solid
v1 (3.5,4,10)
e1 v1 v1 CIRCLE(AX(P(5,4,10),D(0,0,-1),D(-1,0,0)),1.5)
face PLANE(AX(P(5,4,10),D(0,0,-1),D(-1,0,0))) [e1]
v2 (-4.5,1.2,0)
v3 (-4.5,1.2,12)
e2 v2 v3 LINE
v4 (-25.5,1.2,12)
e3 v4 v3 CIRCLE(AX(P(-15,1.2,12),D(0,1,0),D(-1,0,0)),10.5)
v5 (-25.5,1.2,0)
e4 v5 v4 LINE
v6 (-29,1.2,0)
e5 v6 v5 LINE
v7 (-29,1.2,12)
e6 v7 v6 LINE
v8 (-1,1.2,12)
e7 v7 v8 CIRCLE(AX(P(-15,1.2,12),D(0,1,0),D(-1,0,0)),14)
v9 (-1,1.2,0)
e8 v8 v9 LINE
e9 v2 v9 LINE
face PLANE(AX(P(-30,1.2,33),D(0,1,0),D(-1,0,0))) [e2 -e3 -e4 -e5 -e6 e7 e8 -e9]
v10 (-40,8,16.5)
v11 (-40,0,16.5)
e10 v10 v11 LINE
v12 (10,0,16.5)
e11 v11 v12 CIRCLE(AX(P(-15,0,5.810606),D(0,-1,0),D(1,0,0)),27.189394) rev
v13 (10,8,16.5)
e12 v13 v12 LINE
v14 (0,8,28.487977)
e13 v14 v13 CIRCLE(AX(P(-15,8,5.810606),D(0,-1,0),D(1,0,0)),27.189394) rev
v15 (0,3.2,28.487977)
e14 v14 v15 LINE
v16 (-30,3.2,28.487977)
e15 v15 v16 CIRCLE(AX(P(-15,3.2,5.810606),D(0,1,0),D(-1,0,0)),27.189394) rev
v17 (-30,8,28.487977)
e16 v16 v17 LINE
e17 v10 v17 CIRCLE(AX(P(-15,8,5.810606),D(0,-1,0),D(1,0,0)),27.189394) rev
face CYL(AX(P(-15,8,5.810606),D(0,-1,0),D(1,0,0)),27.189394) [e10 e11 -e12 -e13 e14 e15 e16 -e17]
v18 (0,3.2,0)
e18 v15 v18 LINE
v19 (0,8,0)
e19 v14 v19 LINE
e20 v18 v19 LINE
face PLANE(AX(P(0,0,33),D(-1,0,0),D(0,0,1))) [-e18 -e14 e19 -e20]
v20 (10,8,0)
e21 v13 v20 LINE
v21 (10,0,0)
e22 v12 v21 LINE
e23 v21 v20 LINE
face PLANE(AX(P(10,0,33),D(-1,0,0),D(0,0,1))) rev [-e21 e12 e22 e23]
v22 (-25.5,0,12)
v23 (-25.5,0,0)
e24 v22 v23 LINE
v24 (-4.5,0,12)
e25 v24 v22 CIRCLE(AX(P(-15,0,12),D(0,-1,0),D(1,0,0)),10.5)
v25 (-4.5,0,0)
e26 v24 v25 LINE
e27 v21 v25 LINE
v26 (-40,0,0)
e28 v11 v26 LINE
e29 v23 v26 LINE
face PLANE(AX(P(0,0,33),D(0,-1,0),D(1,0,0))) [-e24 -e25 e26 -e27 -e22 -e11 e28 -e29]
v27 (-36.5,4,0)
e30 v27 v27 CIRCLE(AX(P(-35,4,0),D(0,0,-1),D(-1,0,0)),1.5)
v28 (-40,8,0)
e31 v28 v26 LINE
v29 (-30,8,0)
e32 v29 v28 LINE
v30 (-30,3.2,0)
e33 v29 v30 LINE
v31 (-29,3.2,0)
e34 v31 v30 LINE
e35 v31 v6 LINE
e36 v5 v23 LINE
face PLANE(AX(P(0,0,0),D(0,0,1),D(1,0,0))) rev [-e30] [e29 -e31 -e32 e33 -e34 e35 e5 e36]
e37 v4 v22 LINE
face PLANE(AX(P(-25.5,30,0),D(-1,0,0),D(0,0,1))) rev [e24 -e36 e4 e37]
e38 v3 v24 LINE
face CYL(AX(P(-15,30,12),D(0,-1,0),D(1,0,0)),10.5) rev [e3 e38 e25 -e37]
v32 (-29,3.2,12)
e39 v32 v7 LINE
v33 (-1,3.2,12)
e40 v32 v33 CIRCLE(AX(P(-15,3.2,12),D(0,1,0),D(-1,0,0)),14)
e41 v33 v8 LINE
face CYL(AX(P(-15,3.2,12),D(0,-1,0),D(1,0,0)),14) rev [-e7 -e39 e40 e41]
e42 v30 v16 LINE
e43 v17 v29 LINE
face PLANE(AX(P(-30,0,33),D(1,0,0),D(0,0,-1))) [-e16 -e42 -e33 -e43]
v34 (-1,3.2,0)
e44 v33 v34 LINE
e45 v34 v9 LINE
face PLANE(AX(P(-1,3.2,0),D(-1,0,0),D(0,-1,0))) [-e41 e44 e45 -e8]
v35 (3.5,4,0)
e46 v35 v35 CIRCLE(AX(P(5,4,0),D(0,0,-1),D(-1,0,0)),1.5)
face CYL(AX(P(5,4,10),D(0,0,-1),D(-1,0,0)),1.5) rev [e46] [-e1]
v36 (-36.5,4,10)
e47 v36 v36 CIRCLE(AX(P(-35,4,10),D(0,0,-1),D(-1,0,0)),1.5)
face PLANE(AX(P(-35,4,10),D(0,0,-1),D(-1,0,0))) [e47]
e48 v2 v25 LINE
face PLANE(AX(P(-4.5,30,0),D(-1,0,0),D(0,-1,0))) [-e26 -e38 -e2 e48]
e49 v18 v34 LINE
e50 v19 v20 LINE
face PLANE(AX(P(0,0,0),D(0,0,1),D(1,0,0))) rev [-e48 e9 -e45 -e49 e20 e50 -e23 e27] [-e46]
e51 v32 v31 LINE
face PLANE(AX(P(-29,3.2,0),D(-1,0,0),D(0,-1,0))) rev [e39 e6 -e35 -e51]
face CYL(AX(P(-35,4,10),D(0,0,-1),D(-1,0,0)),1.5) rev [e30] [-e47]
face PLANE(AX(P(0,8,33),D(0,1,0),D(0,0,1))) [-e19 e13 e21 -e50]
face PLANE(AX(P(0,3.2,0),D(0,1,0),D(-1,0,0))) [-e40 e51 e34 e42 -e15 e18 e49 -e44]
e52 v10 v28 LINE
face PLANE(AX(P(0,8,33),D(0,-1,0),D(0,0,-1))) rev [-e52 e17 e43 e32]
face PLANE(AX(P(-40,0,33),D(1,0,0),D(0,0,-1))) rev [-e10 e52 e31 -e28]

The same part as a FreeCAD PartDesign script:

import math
import FreeCAD as App
import Part
import Sketcher
Q = App.Units.Quantity


def add_polygon(sketch, points):
    """Adds a closed chain of lines whose ends are joined by coincident constraints."""
    first, n = sketch.GeometryCount, len(points)
    for a, b in zip(points, points[1:] + points[:1]):
        sketch.addGeometry(Part.LineSegment(App.Vector(*a, 0), App.Vector(*b, 0)), False)
    for i in range(n):
        sketch.addConstraint(Sketcher.Constraint("Coincident", first + i, 2, first + (i + 1) % n, 1))

doc = App.newDocument("Part")
body = doc.addObject("PartDesign::Body", "Body")

sketch1 = doc.addObject("Sketcher::SketchObject", "Sketch")
body.addObject(sketch1)
sketch1.AttachmentSupport = (doc.XY_Plane, [""])
sketch1.MapMode = "FlatFace"
add_polygon(sketch1, [(-40, 8), (-40, 0), (10, 0), (10, 8), (0, 8), (0, 1.2), (-30, 1.2), (-30, 8)])
sketch1.addConstraint([
    Sketcher.Constraint("Vertical", 0),
    Sketcher.Constraint("Horizontal", 1),
    Sketcher.Constraint("Vertical", 2),
    Sketcher.Constraint("Horizontal", 3),
    Sketcher.Constraint("Vertical", 4),
    Sketcher.Constraint("Horizontal", 5),
    Sketcher.Constraint("Vertical", 6),
    Sketcher.Constraint("Horizontal", 7),
    Sketcher.Constraint("PointOnObject", 0, 2, -1),
    Sketcher.Constraint("PointOnObject", 3, 2, -2),
    Sketcher.Constraint("Horizontal", 3, 2, 6, 2),
    Sketcher.Constraint("Equal", 3, 7),
    Sketcher.Constraint("DistanceX", 1, 1, 1, 2, Q("50 mm")),
    Sketcher.Constraint("DistanceX", 3, 2, 3, 1, Q("10 mm")),
    Sketcher.Constraint("DistanceY", 0, 2, 0, 1, Q("8 mm")),
    Sketcher.Constraint("DistanceY", 4, 2, 4, 1, Q("6.8 mm")),
])
pad1 = doc.addObject("PartDesign::Pad", "Pad")
body.addObject(pad1)
pad1.Profile = sketch1
pad1.Length = 33

sketch2 = doc.addObject("Sketcher::SketchObject", "Sketch001")
body.addObject(sketch2)
sketch2.AttachmentSupport = (doc.XZ_Plane, [""])
sketch2.MapMode = "FlatFace"
sketch2.addGeometry([
    Part.LineSegment(App.Vector(-4.5, 0, 0), App.Vector(-4.5, 12, 0)),
    Part.ArcOfCircle(Part.Circle(App.Vector(-15, 12, 0), App.Vector(0, 0, 1), 10.5), math.radians(0), math.radians(180)),
    Part.LineSegment(App.Vector(-25.5, 12, 0), App.Vector(-25.5, 0, 0)),
    Part.LineSegment(App.Vector(-25.5, 0, 0), App.Vector(-4.5, 0, 0)),
], False)
sketch2.addConstraint([
    Sketcher.Constraint("Tangent", 0, 2, 1, 1),
    Sketcher.Constraint("Tangent", 1, 2, 2, 1),
    Sketcher.Constraint("Coincident", 2, 2, 3, 1),
    Sketcher.Constraint("Coincident", 3, 2, 0, 1),
    Sketcher.Constraint("Vertical", 0),
    Sketcher.Constraint("Vertical", 2),
    Sketcher.Constraint("Horizontal", 3),
    Sketcher.Constraint("PointOnObject", 2, 2, -1),
    Sketcher.Constraint("Radius", 1, Q("10.5 mm")),
    Sketcher.Constraint("DistanceY", 0, 1, 0, 2, Q("12 mm")),
    Sketcher.Constraint("DistanceX", 1, 3, -1, 1, Q("15 mm")),
])
pocket1 = doc.addObject("PartDesign::Pocket", "Pocket")
body.addObject(pocket1)
pocket1.Profile = sketch2
pocket1.Length = 30

sketch3 = doc.addObject("Sketcher::SketchObject", "Sketch002")
body.addObject(sketch3)
sketch3.AttachmentSupport = (doc.XZ_Plane, [""])
sketch3.MapMode = "FlatFace"
sketch3.AttachmentOffset = App.Placement(App.Vector(0, 0, -1.2), App.Rotation())
sketch3.addGeometry([
    Part.ArcOfCircle(Part.Circle(App.Vector(-15, 12, 0), App.Vector(0, 0, 1), 14), math.radians(0), math.radians(180)),
    Part.LineSegment(App.Vector(-29, 12, 0), App.Vector(-29, 0, 0)),
    Part.LineSegment(App.Vector(-29, 0, 0), App.Vector(-30, 0, 0)),
    Part.LineSegment(App.Vector(-30, 0, 0), App.Vector(-30, 33, 0)),
    Part.LineSegment(App.Vector(-30, 33, 0), App.Vector(0, 33, 0)),
    Part.LineSegment(App.Vector(0, 33, 0), App.Vector(0, 0, 0)),
    Part.LineSegment(App.Vector(0, 0, 0), App.Vector(-1, 0, 0)),
    Part.LineSegment(App.Vector(-1, 0, 0), App.Vector(-1, 12, 0)),
], False)
sketch3.addConstraint([
    Sketcher.Constraint("Tangent", 0, 2, 1, 1),
    Sketcher.Constraint("Coincident", 1, 2, 2, 1),
    Sketcher.Constraint("Coincident", 2, 2, 3, 1),
    Sketcher.Constraint("Coincident", 3, 2, 4, 1),
    Sketcher.Constraint("Coincident", 4, 2, 5, 1),
    Sketcher.Constraint("Coincident", 5, 2, 6, 1),
    Sketcher.Constraint("Coincident", 6, 2, 7, 1),
    Sketcher.Constraint("Tangent", 7, 2, 0, 1),
    Sketcher.Constraint("Vertical", 1),
    Sketcher.Constraint("Horizontal", 2),
    Sketcher.Constraint("Vertical", 3),
    Sketcher.Constraint("Horizontal", 4),
    Sketcher.Constraint("Vertical", 5),
    Sketcher.Constraint("Horizontal", 6),
    Sketcher.Constraint("Vertical", 7),
    Sketcher.Constraint("Coincident", 5, 2, -1, 1),
    Sketcher.Constraint("PointOnObject", 1, 2, -1),
    Sketcher.Constraint("Equal", 2, 6),
    Sketcher.Constraint("Radius", 0, Q("14 mm")),
    Sketcher.Constraint("DistanceX", 2, 2, 2, 1, Q("1 mm")),
    Sketcher.Constraint("DistanceY", 1, 2, 1, 1, Q("12 mm")),
    Sketcher.Constraint("DistanceY", 3, 1, 3, 2, Q("33 mm")),
])
pad2 = doc.addObject("PartDesign::Pad", "Pad001")
body.addObject(pad2)
pad2.Profile = sketch3
pad2.Length = 2
pad2.Reversed = True

sketch4 = doc.addObject("Sketcher::SketchObject", "Sketch003")
body.addObject(sketch4)
sketch4.AttachmentSupport = (doc.XY_Plane, [""])
sketch4.MapMode = "FlatFace"
sketch4.addGeometry([
    Part.Circle(App.Vector(-35, 4, 0), App.Vector(0, 0, 1), 1.5),
    Part.Circle(App.Vector(5, 4, 0), App.Vector(0, 0, 1), 1.5),
], False)
sketch4.addConstraint([
    Sketcher.Constraint("Equal", 0, 1),
    Sketcher.Constraint("Horizontal", 0, 3, 1, 3),
    Sketcher.Constraint("Diameter", 0, Q("3 mm")),
    Sketcher.Constraint("DistanceX", 0, 3, -1, 1, Q("35 mm")),
    Sketcher.Constraint("DistanceY", -1, 1, 0, 3, Q("4 mm")),
    Sketcher.Constraint("DistanceX", -1, 1, 1, 3, Q("5 mm")),
])
pocket2 = doc.addObject("PartDesign::Pocket", "Pocket001")
body.addObject(pocket2)
pocket2.Profile = sketch4
pocket2.Length = 10
pocket2.Reversed = True

sketch5 = doc.addObject("Sketcher::SketchObject", "Sketch004")
body.addObject(sketch5)
sketch5.AttachmentSupport = (doc.XZ_Plane, [""])
sketch5.MapMode = "FlatFace"
sketch5.addGeometry([
    Part.LineSegment(App.Vector(-40, 33, 0), App.Vector(-40, 16.5, 0)),
    Part.ArcOfCircle(Part.Circle(App.Vector(-15, 5.810606, 0), App.Vector(0, 0, 1), 27.189394), math.radians(90), math.radians(156.849622)),
    Part.LineSegment(App.Vector(-15, 33, 0), App.Vector(-40, 33, 0)),
    Part.LineSegment(App.Vector(10, 33, 0), App.Vector(-15, 33, 0)),
    Part.ArcOfCircle(Part.Circle(App.Vector(-15, 5.810606, 0), App.Vector(0, 0, 1), 27.189394), math.radians(23.150378), math.radians(90)),
    Part.LineSegment(App.Vector(10, 16.5, 0), App.Vector(10, 33, 0)),
], False)
sketch5.addConstraint([
    Sketcher.Constraint("Coincident", 0, 2, 1, 2),
    Sketcher.Constraint("Tangent", 1, 1, 2, 1),
    Sketcher.Constraint("Coincident", 2, 2, 0, 1),
    Sketcher.Constraint("Tangent", 3, 2, 4, 2),
    Sketcher.Constraint("Coincident", 4, 1, 5, 1),
    Sketcher.Constraint("Coincident", 5, 2, 3, 1),
    Sketcher.Constraint("Vertical", 0),
    Sketcher.Constraint("Horizontal", 2),
    Sketcher.Constraint("Horizontal", 3),
    Sketcher.Constraint("Vertical", 5),
    Sketcher.Constraint("Coincident", 4, 3, 1, 3),
    Sketcher.Constraint("Equal", 1, 4),
    Sketcher.Constraint("Horizontal", 0, 2, 4, 1),
    Sketcher.Constraint("DistanceX", 2, 2, 2, 1, Q("25 mm")),
    Sketcher.Constraint("DistanceY", 0, 2, 0, 1, Q("16.5 mm")),
    Sketcher.Constraint("DistanceX", 1, 3, -1, 1, Q("15 mm")),
    Sketcher.Constraint("DistanceY", -1, 1, 1, 1, Q("33 mm")),
])
pocket3 = doc.addObject("PartDesign::Pocket", "Pocket002")
body.addObject(pocket3)
pocket3.Profile = sketch5
pocket3.Type = "ThroughAll"

doc.recompute()
